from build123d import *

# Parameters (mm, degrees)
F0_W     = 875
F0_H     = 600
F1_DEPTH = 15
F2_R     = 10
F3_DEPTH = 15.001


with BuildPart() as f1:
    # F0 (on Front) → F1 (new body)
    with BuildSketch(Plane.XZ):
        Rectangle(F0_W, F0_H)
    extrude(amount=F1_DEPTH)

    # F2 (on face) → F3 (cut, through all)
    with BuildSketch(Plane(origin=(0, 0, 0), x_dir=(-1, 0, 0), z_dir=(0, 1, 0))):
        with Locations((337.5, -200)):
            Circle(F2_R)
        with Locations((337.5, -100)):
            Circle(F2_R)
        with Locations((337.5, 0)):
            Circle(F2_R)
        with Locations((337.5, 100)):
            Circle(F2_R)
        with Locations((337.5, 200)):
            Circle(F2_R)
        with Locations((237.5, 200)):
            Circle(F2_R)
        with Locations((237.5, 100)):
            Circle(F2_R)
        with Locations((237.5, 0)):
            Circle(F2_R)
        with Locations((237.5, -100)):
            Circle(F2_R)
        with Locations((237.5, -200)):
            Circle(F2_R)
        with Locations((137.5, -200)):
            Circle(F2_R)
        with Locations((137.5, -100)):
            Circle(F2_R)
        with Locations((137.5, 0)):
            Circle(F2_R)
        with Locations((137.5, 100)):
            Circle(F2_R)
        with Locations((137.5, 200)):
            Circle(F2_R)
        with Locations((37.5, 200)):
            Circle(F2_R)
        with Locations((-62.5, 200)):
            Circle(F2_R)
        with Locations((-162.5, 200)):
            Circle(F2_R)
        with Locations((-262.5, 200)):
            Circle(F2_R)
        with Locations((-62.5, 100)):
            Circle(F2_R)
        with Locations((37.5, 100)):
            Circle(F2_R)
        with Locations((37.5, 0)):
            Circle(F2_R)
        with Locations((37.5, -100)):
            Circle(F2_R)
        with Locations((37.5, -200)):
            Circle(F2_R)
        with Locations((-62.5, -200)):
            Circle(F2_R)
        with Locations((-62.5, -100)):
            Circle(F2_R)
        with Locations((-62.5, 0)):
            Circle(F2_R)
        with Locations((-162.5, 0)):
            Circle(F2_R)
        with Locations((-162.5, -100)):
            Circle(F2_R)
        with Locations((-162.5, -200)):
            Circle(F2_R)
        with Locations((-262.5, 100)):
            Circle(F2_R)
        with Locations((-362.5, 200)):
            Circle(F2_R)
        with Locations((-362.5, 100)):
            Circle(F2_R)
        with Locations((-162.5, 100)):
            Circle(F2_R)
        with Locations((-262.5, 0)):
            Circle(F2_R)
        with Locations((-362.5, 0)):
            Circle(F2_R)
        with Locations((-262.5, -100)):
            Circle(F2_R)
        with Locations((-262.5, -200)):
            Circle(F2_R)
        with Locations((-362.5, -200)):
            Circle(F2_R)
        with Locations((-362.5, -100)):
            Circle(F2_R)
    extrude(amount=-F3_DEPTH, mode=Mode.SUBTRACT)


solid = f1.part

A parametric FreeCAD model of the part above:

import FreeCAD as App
import Part
import Sketcher
Q = App.Units.Quantity

doc = App.newDocument("Part")
params = doc.addObject("Spreadsheet::Sheet", "Params")
for row, (alias, value) in enumerate([
    ("sketch1_width", "875 mm"),
    ("sketch1_height", "600 mm"),
    ("pad1_length", "15 mm"),
    ("sketch2_diameter", "20 mm"),
], start=1):
    params.set(f"A{row}", alias)
    params.set(f"B{row}", "=" + value)
    params.setAlias(f"B{row}", alias)

body = doc.addObject("PartDesign::Body", "Body")

# Sketch on XZ plane
sketch1 = doc.addObject("Sketcher::SketchObject", "Sketch")
body.addObject(sketch1)
sketch1.AttachmentSupport = (doc.XZ_Plane, [""])
sketch1.MapMode = "FlatFace"
sketch1.addGeometry([
    Part.LineSegment(App.Vector(-437.5, 300, 0), App.Vector(-437.5, -300, 0)),
    Part.LineSegment(App.Vector(-437.5, -300, 0), App.Vector(437.5, -300, 0)),
    Part.LineSegment(App.Vector(437.5, -300, 0), App.Vector(437.5, 300, 0)),
    Part.LineSegment(App.Vector(437.5, 300, 0), App.Vector(-437.5, 300, 0)),
], False)
sketch1.addConstraint([
    Sketcher.Constraint("Coincident", 0, 2, 1, 1),
    Sketcher.Constraint("Coincident", 1, 2, 2, 1),
    Sketcher.Constraint("Coincident", 2, 2, 3, 1),
    Sketcher.Constraint("Coincident", 3, 2, 0, 1),
    Sketcher.Constraint("Vertical", 0),
    Sketcher.Constraint("Horizontal", 1),
    Sketcher.Constraint("Vertical", 2),
    Sketcher.Constraint("Horizontal", 3),
    Sketcher.Constraint("Symmetric", 0, 2, 2, 2, -1, 1),
    Sketcher.Constraint("DistanceX", 1, 1, 1, 2, Q("875 mm")),
    Sketcher.Constraint("DistanceY", 0, 2, 0, 1, Q("600 mm")),
])
sketch1.setExpression("Constraints[9]", "Params.sketch1_width")
sketch1.setExpression("Constraints[10]", "Params.sketch1_height")
pad1 = doc.addObject("PartDesign::Pad", "Pad")
body.addObject(pad1)
pad1.Profile = sketch1
pad1.setExpression("Length", "Params.pad1_length")

# Sketch on XZ plane
sketch2 = doc.addObject("Sketcher::SketchObject", "Sketch001")
body.addObject(sketch2)
sketch2.AttachmentSupport = (doc.XZ_Plane, [""])
sketch2.MapMode = "FlatFace"
sketch2.addGeometry([
    Part.Circle(App.Vector(-337.5, -200, 0), App.Vector(0, 0, 1), 10),  # 0
    Part.Circle(App.Vector(-337.5, -100, 0), App.Vector(0, 0, 1), 10),  # 1
    Part.Circle(App.Vector(-337.5, 0, 0), App.Vector(0, 0, 1), 10),  # 2
    Part.Circle(App.Vector(-337.5, 100, 0), App.Vector(0, 0, 1), 10),  # 3
    Part.Circle(App.Vector(-337.5, 200, 0), App.Vector(0, 0, 1), 10),  # 4
    Part.Circle(App.Vector(-237.5, 200, 0), App.Vector(0, 0, 1), 10),  # 5
    Part.Circle(App.Vector(-237.5, 100, 0), App.Vector(0, 0, 1), 10),  # 6
    Part.Circle(App.Vector(-237.5, 0, 0), App.Vector(0, 0, 1), 10),  # 7
    Part.Circle(App.Vector(-237.5, -100, 0), App.Vector(0, 0, 1), 10),  # 8
    Part.Circle(App.Vector(-237.5, -200, 0), App.Vector(0, 0, 1), 10),  # 9
    Part.Circle(App.Vector(-137.5, -200, 0), App.Vector(0, 0, 1), 10),  # 10
    Part.Circle(App.Vector(-137.5, -100, 0), App.Vector(0, 0, 1), 10),  # 11
    Part.Circle(App.Vector(-137.5, 0, 0), App.Vector(0, 0, 1), 10),  # 12
    Part.Circle(App.Vector(-137.5, 100, 0), App.Vector(0, 0, 1), 10),  # 13
    Part.Circle(App.Vector(-137.5, 200, 0), App.Vector(0, 0, 1), 10),  # 14
    Part.Circle(App.Vector(-37.5, 200, 0), App.Vector(0, 0, 1), 10),  # 15
    Part.Circle(App.Vector(62.5, 200, 0), App.Vector(0, 0, 1), 10),  # 16
    Part.Circle(App.Vector(162.5, 200, 0), App.Vector(0, 0, 1), 10),  # 17
    Part.Circle(App.Vector(262.5, 200, 0), App.Vector(0, 0, 1), 10),  # 18
    Part.Circle(App.Vector(62.5, 100, 0), App.Vector(0, 0, 1), 10),  # 19
    Part.Circle(App.Vector(-37.5, 100, 0), App.Vector(0, 0, 1), 10),  # 20
    Part.Circle(App.Vector(-37.5, 0, 0), App.Vector(0, 0, 1), 10),  # 21
    Part.Circle(App.Vector(-37.5, -100, 0), App.Vector(0, 0, 1), 10),  # 22
    Part.Circle(App.Vector(-37.5, -200, 0), App.Vector(0, 0, 1), 10),  # 23
    Part.Circle(App.Vector(62.5, -200, 0), App.Vector(0, 0, 1), 10),  # 24
    Part.Circle(App.Vector(62.5, -100, 0), App.Vector(0, 0, 1), 10),  # 25
    Part.Circle(App.Vector(62.5, 0, 0), App.Vector(0, 0, 1), 10),  # 26
    Part.Circle(App.Vector(162.5, 0, 0), App.Vector(0, 0, 1), 10),  # 27
    Part.Circle(App.Vector(162.5, -100, 0), App.Vector(0, 0, 1), 10),  # 28
    Part.Circle(App.Vector(162.5, -200, 0), App.Vector(0, 0, 1), 10),  # 29
    Part.Circle(App.Vector(262.5, 100, 0), App.Vector(0, 0, 1), 10),  # 30
    Part.Circle(App.Vector(362.5, 200, 0), App.Vector(0, 0, 1), 10),  # 31
    Part.Circle(App.Vector(362.5, 100, 0), App.Vector(0, 0, 1), 10),  # 32
    Part.Circle(App.Vector(162.5, 100, 0), App.Vector(0, 0, 1), 10),  # 33
    Part.Circle(App.Vector(262.5, 0, 0), App.Vector(0, 0, 1), 10),  # 34
    Part.Circle(App.Vector(362.5, 0, 0), App.Vector(0, 0, 1), 10),  # 35
    Part.Circle(App.Vector(262.5, -100, 0), App.Vector(0, 0, 1), 10),  # 36
    Part.Circle(App.Vector(262.5, -200, 0), App.Vector(0, 0, 1), 10),  # 37
    Part.Circle(App.Vector(362.5, -200, 0), App.Vector(0, 0, 1), 10),  # 38
    Part.Circle(App.Vector(362.5, -100, 0), App.Vector(0, 0, 1), 10),  # 39
], False)
sketch2.addConstraint([
    Sketcher.Constraint("Equal", 0, 1),
    Sketcher.Constraint("Equal", 1, 2),
    Sketcher.Constraint("Equal", 2, 3),
    Sketcher.Constraint("Equal", 3, 4),
    Sketcher.Constraint("Equal", 4, 5),
    Sketcher.Constraint("Equal", 5, 6),
    Sketcher.Constraint("Equal", 6, 7),
    Sketcher.Constraint("Equal", 7, 8),
    Sketcher.Constraint("Equal", 8, 9),
    Sketcher.Constraint("Equal", 9, 10),
    Sketcher.Constraint("Equal", 10, 11),
    Sketcher.Constraint("Equal", 11, 12),
    Sketcher.Constraint("Equal", 12, 13),
    Sketcher.Constraint("Equal", 13, 14),
    Sketcher.Constraint("Equal", 14, 15),
    Sketcher.Constraint("Equal", 15, 16),
    Sketcher.Constraint("Equal", 16, 17),
    Sketcher.Constraint("Equal", 17, 18),
    Sketcher.Constraint("Equal", 18, 19),
    Sketcher.Constraint("Equal", 19, 20),
    Sketcher.Constraint("Equal", 20, 21),
    Sketcher.Constraint("Equal", 21, 22),
    Sketcher.Constraint("Equal", 22, 23),
    Sketcher.Constraint("Equal", 23, 24),
    Sketcher.Constraint("Equal", 24, 25),
    Sketcher.Constraint("Equal", 25, 26),
    Sketcher.Constraint("Equal", 26, 27),
    Sketcher.Constraint("Equal", 27, 28),
    Sketcher.Constraint("Equal", 28, 29),
    Sketcher.Constraint("Equal", 29, 30),
    Sketcher.Constraint("Equal", 30, 31),
    Sketcher.Constraint("Equal", 31, 32),
    Sketcher.Constraint("Equal", 32, 33),
    Sketcher.Constraint("Equal", 33, 34),
    Sketcher.Constraint("Equal", 34, 35),
    Sketcher.Constraint("Equal", 35, 36),
    Sketcher.Constraint("Equal", 36, 37),
    Sketcher.Constraint("Equal", 37, 38),
    Sketcher.Constraint("Equal", 38, 39),
    Sketcher.Constraint("Symmetric", 1, 3, 3, 3, -1),
    Sketcher.Constraint("Symmetric", 0, 3, 4, 3, -1),
    Sketcher.Constraint("Symmetric", 6, 3, 8, 3, -1),
    Sketcher.Constraint("Symmetric", 5, 3, 9, 3, -1),
    Sketcher.Constraint("Symmetric", 11, 3, 13, 3, -1),
    Sketcher.Constraint("Symmetric", 10, 3, 14, 3, -1),
    Sketcher.Constraint("Symmetric", 20, 3, 22, 3, -1),
    Sketcher.Constraint("Symmetric", 15, 3, 23, 3, -1),
    Sketcher.Constraint("Symmetric", 16, 3, 24, 3, -1),
    Sketcher.Constraint("Symmetric", 19, 3, 25, 3, -1),
    Sketcher.Constraint("Symmetric", 17, 3, 29, 3, -1),
    Sketcher.Constraint("Symmetric", 28, 3, 33, 3, -1),
    Sketcher.Constraint("Symmetric", 30, 3, 36, 3, -1),
    Sketcher.Constraint("Symmetric", 18, 3, 37, 3, -1),
    Sketcher.Constraint("Symmetric", 31, 3, 38, 3, -1),
    Sketcher.Constraint("Symmetric", 32, 3, 39, 3, -1),
    Sketcher.Constraint("PointOnObject", 2, 3, -1),
    Sketcher.Constraint("PointOnObject", 7, 3, -1),
    Sketcher.Constraint("PointOnObject", 12, 3, -1),
    Sketcher.Constraint("PointOnObject", 21, 3, -1),
    Sketcher.Constraint("PointOnObject", 26, 3, -1),
    Sketcher.Constraint("PointOnObject", 27, 3, -1),
    Sketcher.Constraint("PointOnObject", 34, 3, -1),
    Sketcher.Constraint("PointOnObject", 35, 3, -1),
    Sketcher.Constraint("Horizontal", 4, 3, 5, 3),
    Sketcher.Constraint("Horizontal", 3, 3, 6, 3),
    Sketcher.Constraint("Horizontal", 9, 3, 10, 3),
    Sketcher.Constraint("Horizontal", 8, 3, 11, 3),
    Sketcher.Constraint("Horizontal", 14, 3, 15, 3),
    Sketcher.Constraint("Horizontal", 15, 3, 16, 3),
    Sketcher.Constraint("Horizontal", 16, 3, 17, 3),
    Sketcher.Constraint("Horizontal", 17, 3, 18, 3),
    Sketcher.Constraint("Horizontal", 13, 3, 19, 3),
    Sketcher.Constraint("Horizontal", 19, 3, 20, 3),
    Sketcher.Constraint("Horizontal", 25, 3, 28, 3),
    Sketcher.Constraint("Horizontal", 20, 3, 30, 3),
    Sketcher.Constraint("Horizontal", 18, 3, 31, 3),
    Sketcher.Constraint("Horizontal", 30, 3, 32, 3),
    Sketcher.Constraint("Vertical", 0, 3, 1, 3),
    Sketcher.Constraint("Vertical", 1, 3, 2, 3),
    Sketcher.Constraint("Vertical", 5, 3, 6, 3),
    Sketcher.Constraint("Vertical", 6, 3, 7, 3),
    Sketcher.Constraint("Vertical", 10, 3, 11, 3),
    Sketcher.Constraint("Vertical", 11, 3, 12, 3),
    Sketcher.Constraint("Vertical", 16, 3, 19, 3),
    Sketcher.Constraint("Vertical", 15, 3, 20, 3),
    Sketcher.Constraint("Vertical", 20, 3, 21, 3),
    Sketcher.Constraint("Vertical", 25, 3, 26, 3),
    Sketcher.Constraint("Vertical", 17, 3, 27, 3),
    Sketcher.Constraint("Vertical", 27, 3, 28, 3),
    Sketcher.Constraint("Vertical", 18, 3, 30, 3),
    Sketcher.Constraint("Vertical", 31, 3, 32, 3),
    Sketcher.Constraint("Vertical", 30, 3, 34, 3),
    Sketcher.Constraint("Vertical", 32, 3, 35, 3),
    Sketcher.Constraint("Diameter", 0, Q("20 mm")),
    Sketcher.Constraint("DistanceY", 0, 3, -1, 1, Q("200 mm")),
    Sketcher.Constraint("DistanceY", 1, 3, -1, 1, Q("100 mm")),
    Sketcher.Constraint("DistanceX", 4, 3, 5, 3, Q("100 mm")),
    Sketcher.Constraint("DistanceX", 9, 3, 10, 3, Q("100 mm")),
    Sketcher.Constraint("DistanceX", 14, 3, 15, 3, Q("100 mm")),
    Sketcher.Constraint("DistanceX", 15, 3, 16, 3, Q("100 mm")),
    Sketcher.Constraint("DistanceX", 16, 3, 17, 3, Q("100 mm")),
    Sketcher.Constraint("DistanceX", 17, 3, 18, 3, Q("100 mm")),
    Sketcher.Constraint("DistanceX", 18, 3, 31, 3, Q("100 mm")),
    Sketcher.Constraint("DistanceX", 0, 3, -1, 1, Q("337.5 mm")),
])
sketch2.setExpression("Constraints[93]", "Params.sketch2_diameter")
pocket1 = doc.addObject("PartDesign::Pocket", "Pocket")
body.addObject(pocket1)
pocket1.Profile = sketch2
pocket1.Type = "ThroughAll"
pocket1.Reversed = True

doc.recompute()
